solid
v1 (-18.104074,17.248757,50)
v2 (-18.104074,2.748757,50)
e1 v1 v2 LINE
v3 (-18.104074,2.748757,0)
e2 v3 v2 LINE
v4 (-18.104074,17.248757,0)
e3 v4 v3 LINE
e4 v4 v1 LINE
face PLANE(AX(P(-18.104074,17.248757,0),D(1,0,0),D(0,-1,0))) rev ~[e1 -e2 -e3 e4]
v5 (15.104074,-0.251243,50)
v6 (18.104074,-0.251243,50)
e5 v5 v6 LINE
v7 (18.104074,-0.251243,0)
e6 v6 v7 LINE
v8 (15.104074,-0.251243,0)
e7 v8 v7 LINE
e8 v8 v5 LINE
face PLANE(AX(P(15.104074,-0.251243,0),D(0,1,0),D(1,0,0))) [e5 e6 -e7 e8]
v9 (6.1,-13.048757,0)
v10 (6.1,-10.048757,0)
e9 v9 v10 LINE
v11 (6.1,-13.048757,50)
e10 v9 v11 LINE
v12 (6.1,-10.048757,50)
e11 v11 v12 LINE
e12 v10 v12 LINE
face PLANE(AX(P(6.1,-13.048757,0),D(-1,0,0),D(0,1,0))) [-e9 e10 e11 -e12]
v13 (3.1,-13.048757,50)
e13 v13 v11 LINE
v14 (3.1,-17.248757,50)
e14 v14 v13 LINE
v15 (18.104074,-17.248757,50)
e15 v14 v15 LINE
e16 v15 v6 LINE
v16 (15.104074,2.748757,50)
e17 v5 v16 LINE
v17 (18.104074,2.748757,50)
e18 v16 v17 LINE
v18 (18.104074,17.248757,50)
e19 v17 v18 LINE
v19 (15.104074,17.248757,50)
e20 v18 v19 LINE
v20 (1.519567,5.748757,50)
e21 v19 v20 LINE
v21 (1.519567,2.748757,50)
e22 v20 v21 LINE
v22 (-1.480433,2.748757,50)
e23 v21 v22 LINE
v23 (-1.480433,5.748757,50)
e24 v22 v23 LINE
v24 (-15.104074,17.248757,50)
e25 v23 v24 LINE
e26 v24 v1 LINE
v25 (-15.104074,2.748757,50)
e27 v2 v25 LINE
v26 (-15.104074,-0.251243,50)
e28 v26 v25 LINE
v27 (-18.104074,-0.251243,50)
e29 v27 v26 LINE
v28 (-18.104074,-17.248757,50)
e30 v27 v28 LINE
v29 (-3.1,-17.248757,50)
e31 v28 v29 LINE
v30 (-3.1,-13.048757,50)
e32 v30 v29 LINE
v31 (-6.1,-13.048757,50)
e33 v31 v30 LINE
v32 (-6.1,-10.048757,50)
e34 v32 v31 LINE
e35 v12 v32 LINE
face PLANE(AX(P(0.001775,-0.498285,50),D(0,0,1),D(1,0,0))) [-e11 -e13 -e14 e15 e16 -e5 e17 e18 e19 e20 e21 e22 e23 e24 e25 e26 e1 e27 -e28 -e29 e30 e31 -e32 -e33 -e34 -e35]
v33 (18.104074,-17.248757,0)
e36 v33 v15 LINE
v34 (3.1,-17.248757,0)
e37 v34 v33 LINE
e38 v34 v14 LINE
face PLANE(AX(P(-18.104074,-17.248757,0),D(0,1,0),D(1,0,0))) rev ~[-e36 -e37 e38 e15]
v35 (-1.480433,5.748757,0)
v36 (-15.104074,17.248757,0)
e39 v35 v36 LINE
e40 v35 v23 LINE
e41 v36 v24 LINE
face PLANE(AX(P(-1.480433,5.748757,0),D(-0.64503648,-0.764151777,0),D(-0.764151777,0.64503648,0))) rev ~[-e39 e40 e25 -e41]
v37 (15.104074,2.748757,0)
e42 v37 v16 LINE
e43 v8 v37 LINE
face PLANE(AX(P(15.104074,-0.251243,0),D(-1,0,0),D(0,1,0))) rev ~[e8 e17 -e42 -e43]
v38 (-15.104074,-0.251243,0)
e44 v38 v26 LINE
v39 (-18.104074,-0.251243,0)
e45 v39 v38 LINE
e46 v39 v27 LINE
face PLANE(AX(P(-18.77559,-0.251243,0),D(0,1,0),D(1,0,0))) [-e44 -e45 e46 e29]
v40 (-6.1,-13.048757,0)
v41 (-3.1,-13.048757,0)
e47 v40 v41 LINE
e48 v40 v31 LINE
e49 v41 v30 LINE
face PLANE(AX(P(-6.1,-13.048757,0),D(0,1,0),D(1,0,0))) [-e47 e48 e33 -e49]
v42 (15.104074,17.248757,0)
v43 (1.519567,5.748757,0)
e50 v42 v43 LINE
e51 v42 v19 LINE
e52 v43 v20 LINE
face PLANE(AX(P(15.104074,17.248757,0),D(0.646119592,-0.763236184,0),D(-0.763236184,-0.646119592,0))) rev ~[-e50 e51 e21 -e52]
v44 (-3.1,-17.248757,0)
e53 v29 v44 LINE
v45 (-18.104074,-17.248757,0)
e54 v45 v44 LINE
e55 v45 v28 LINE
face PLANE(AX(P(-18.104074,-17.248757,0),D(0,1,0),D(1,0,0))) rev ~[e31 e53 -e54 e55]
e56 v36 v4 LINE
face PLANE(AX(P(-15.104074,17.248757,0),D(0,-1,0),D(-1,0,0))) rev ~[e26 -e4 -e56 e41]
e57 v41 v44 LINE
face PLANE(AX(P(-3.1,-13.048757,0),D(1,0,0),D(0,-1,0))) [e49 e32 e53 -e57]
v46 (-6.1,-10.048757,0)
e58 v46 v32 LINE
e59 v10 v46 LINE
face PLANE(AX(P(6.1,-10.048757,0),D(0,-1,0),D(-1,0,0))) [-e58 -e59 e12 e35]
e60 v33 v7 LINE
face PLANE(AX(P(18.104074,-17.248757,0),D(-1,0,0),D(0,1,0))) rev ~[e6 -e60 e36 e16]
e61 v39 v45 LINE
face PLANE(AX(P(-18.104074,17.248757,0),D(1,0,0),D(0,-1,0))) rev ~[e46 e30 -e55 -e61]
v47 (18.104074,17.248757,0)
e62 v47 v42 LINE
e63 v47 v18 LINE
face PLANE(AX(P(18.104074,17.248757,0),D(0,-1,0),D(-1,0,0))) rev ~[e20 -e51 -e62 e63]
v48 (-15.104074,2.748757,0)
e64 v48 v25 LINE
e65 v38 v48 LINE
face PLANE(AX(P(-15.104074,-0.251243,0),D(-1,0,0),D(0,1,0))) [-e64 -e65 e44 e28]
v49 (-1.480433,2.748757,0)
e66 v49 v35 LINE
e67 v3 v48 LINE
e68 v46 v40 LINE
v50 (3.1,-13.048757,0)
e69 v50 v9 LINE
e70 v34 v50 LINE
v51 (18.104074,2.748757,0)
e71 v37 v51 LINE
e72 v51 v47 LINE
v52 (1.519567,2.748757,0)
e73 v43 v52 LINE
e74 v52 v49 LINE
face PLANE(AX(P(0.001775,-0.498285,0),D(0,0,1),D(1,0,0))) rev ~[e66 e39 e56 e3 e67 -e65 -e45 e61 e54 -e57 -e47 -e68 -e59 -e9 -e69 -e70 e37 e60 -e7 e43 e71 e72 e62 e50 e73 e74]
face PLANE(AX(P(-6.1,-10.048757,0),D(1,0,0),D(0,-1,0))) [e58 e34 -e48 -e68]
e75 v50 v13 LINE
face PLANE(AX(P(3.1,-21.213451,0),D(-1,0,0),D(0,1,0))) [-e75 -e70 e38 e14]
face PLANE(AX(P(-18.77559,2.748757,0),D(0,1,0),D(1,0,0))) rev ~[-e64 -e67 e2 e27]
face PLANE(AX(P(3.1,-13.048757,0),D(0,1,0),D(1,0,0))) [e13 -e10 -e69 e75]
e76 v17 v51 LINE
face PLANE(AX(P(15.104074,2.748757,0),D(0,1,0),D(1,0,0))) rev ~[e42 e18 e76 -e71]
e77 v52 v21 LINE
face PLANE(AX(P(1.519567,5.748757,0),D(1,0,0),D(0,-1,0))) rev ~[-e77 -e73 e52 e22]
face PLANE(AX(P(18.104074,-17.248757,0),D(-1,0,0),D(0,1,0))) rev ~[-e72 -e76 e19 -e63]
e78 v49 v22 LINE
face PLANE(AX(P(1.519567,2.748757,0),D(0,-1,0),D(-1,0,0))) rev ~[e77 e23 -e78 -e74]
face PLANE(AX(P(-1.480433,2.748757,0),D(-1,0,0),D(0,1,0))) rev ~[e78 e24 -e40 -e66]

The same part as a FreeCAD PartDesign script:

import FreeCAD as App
import Part
import Sketcher
from FreeCAD import Vector


def add_polygon(sketch, points):
    """Adds a closed chain of lines whose ends are joined by coincident constraints."""
    first, n = sketch.GeometryCount, len(points)
    for a, b in zip(points, points[1:] + points[:1]):
        sketch.addGeometry(Part.LineSegment(App.Vector(*a, 0), App.Vector(*b, 0)), False)
    for i in range(n):
        sketch.addConstraint(Sketcher.Constraint("Coincident", first + i, 2, first + (i + 1) % n, 1))

doc = App.newDocument("Part")
params = doc.addObject("Spreadsheet::Sheet", "Params")
for row, (alias, value) in enumerate([
    ("sketch1_width", "3 mm"),
    ("pad1_length", "50 mm"),
    ("sketch2_width", "3 mm"),
    ("sketch2_width2", "12.2 mm"),
    ("pocket1_length", "50 mm"),
    ("sketch3_height", "3 mm"),
    ("pocket2_length", "50 mm"),
], start=1):
    params.set(f"A{row}", alias)
    params.set(f"B{row}", "=" + value)
    params.setAlias(f"B{row}", alias)

body = doc.addObject("PartDesign::Body", "Body")

# Sketch on XY plane
sketch1 = doc.addObject("Sketcher::SketchObject", "Sketch")
body.addObject(sketch1)
sketch1.AttachmentSupport = (doc.XY_Plane, [""])
sketch1.MapMode = "FlatFace"
add_polygon(sketch1, [(18.104074, -17.248757), (18.104074, 17.248757), (15.104074, 17.248757), (1.519567, 5.748757), (1.519567, 2.748757), (-1.480433, 2.748757), (-1.480433, 5.748757), (-15.104074, 17.248757), (-18.104074, 17.248757), (-18.104074, -17.248757)])  # lines 0-9
sketch1.addConstraint(Sketcher.Constraint("Vertical", 0))
sketch1.addConstraint(Sketcher.Constraint("Horizontal", 1))
sketch1.addConstraint(Sketcher.Constraint("Vertical", 3))
sketch1.addConstraint(Sketcher.Constraint("Horizontal", 4))
sketch1.addConstraint(Sketcher.Constraint("Vertical", 5))
sketch1.addConstraint(Sketcher.Constraint("Horizontal", 7))
sketch1.addConstraint(Sketcher.Constraint("Vertical", 8))
sketch1.addConstraint(Sketcher.Constraint("Horizontal", 9))
sketch1.addConstraint(Sketcher.Constraint("Symmetric", 0, 2, 8, 2, -1, 1))
sketch1.addConstraint(Sketcher.Constraint("Symmetric", 1, 2, 6, 2, -2))
sketch1.addConstraint(Sketcher.Constraint("Horizontal", 2, 2, 5, 2))
sketch1.addConstraint(Sketcher.Constraint("Equal", 1, 4))
sketch1.addConstraint(Sketcher.Constraint("Equal", 7, 3))
sketch1.addConstraint(Sketcher.Constraint("DistanceX", 1, 2, 1, 1, 3.0))
sketch1.addConstraint(Sketcher.Constraint("DistanceY", 2, 2, 1, 2, 11.5))
sketch1.addConstraint(Sketcher.Constraint("Distance", 6, 17.828449))
sketch1.addConstraint(Sketcher.Constraint("DistanceX", 9, 1, 9, 2, 36.208148))
sketch1.addConstraint(Sketcher.Constraint("DistanceY", 0, 1, 0, 2, 34.497514))
sketch1.setExpression("Constraints[23]", "Params.sketch1_width")
pad1 = doc.addObject("PartDesign::Pad", "Pad")
body.addObject(pad1)
pad1.Profile = sketch1
pad1.setExpression("Length", "Params.pad1_length")

# Sketch on XY plane
sketch2 = doc.addObject("Sketcher::SketchObject", "Sketch001")
body.addObject(sketch2)
sketch2.AttachmentSupport = (doc.XY_Plane, [""])
sketch2.MapMode = "FlatFace"
add_polygon(sketch2, [(6.1, -10.048757), (-6.1, -10.048757), (-6.1, -13.048757), (-3.1, -13.048757), (-3.1, -21.213451), (3.1, -21.213451), (3.1, -13.048757), (6.1, -13.048757)])  # lines 0-7
sketch2.addConstraint(Sketcher.Constraint("Horizontal", 0))
sketch2.addConstraint(Sketcher.Constraint("Vertical", 1))
sketch2.addConstraint(Sketcher.Constraint("Horizontal", 2))
sketch2.addConstraint(Sketcher.Constraint("Vertical", 3))
sketch2.addConstraint(Sketcher.Constraint("Horizontal", 4))
sketch2.addConstraint(Sketcher.Constraint("Vertical", 5))
sketch2.addConstraint(Sketcher.Constraint("Horizontal", 6))
sketch2.addConstraint(Sketcher.Constraint("Vertical", 7))
sketch2.addConstraint(Sketcher.Constraint("Symmetric", 2, 2, 5, 2, -2))
sketch2.addConstraint(Sketcher.Constraint("Equal", 2, 6))
sketch2.addConstraint(Sketcher.Constraint("Equal", 6, 1))
sketch2.addConstraint(Sketcher.Constraint("DistanceX", 2, 1, 2, 2, 3.0))
sketch2.addConstraint(Sketcher.Constraint("DistanceX", 0, 2, 0, 1, 12.2))
sketch2.addConstraint(Sketcher.Constraint("DistanceY", 3, 2, 3, 1, 8.164694))
sketch2.addConstraint(Sketcher.Constraint("DistanceY", 3, 2, -1, 1, 21.213451))
sketch2.setExpression("Constraints[19]", "Params.sketch2_width")
sketch2.setExpression("Constraints[20]", "Params.sketch2_width2")
pocket1 = doc.addObject("PartDesign::Pocket", "Pocket")
body.addObject(pocket1)
pocket1.Profile = sketch2
pocket1.setExpression("Length", "Params.pocket1_length")
pocket1.Reversed = True

# Sketch on XY plane
sketch3 = doc.addObject("Sketcher::SketchObject", "Sketch002")
body.addObject(sketch3)
sketch3.AttachmentSupport = (doc.XY_Plane, [""])
sketch3.MapMode = "FlatFace"
add_polygon(sketch3, [(-18.77559, 2.748757), (-18.77559, -0.251243), (-15.104074, -0.251243), (-15.104074, 2.748757)])  # lines 0-3
add_polygon(sketch3, [(15.104074, 2.748757), (15.104074, -0.251243), (21.505212, -0.251243), (21.505212, 2.748757)])  # lines 4-7
sketch3.addConstraint(Sketcher.Constraint("Vertical", 0))
sketch3.addConstraint(Sketcher.Constraint("Horizontal", 1))
sketch3.addConstraint(Sketcher.Constraint("Vertical", 2))
sketch3.addConstraint(Sketcher.Constraint("Horizontal", 3))
sketch3.addConstraint(Sketcher.Constraint("Vertical", 4))
sketch3.addConstraint(Sketcher.Constraint("Horizontal", 5))
sketch3.addConstraint(Sketcher.Constraint("Vertical", 6))
sketch3.addConstraint(Sketcher.Constraint("Horizontal", 7))
sketch3.addConstraint(Sketcher.Constraint("Symmetric", 1, 2, 4, 2, -2))
sketch3.addConstraint(Sketcher.Constraint("Horizontal", 3, 2, 6, 2))
sketch3.addConstraint(Sketcher.Constraint("DistanceY", 0, 2, 0, 1, 3.0))
sketch3.addConstraint(Sketcher.Constraint("DistanceX", 1, 1, 1, 2, 3.671517))
sketch3.addConstraint(Sketcher.Constraint("DistanceX", 5, 1, 5, 2, 6.401138))
sketch3.addConstraint(Sketcher.Constraint("DistanceX", 0, 2, -1, 1, 18.77559))
sketch3.addConstraint(Sketcher.Constraint("DistanceY", 0, 2, -1, 1, 0.251243))
sketch3.setExpression("Constraints[18]", "Params.sketch3_height")
pocket2 = doc.addObject("PartDesign::Pocket", "Pocket001")
body.addObject(pocket2)
pocket2.Profile = sketch3
pocket2.setExpression("Length", "Params.pocket2_length")
pocket2.Reversed = True

doc.recompute()
